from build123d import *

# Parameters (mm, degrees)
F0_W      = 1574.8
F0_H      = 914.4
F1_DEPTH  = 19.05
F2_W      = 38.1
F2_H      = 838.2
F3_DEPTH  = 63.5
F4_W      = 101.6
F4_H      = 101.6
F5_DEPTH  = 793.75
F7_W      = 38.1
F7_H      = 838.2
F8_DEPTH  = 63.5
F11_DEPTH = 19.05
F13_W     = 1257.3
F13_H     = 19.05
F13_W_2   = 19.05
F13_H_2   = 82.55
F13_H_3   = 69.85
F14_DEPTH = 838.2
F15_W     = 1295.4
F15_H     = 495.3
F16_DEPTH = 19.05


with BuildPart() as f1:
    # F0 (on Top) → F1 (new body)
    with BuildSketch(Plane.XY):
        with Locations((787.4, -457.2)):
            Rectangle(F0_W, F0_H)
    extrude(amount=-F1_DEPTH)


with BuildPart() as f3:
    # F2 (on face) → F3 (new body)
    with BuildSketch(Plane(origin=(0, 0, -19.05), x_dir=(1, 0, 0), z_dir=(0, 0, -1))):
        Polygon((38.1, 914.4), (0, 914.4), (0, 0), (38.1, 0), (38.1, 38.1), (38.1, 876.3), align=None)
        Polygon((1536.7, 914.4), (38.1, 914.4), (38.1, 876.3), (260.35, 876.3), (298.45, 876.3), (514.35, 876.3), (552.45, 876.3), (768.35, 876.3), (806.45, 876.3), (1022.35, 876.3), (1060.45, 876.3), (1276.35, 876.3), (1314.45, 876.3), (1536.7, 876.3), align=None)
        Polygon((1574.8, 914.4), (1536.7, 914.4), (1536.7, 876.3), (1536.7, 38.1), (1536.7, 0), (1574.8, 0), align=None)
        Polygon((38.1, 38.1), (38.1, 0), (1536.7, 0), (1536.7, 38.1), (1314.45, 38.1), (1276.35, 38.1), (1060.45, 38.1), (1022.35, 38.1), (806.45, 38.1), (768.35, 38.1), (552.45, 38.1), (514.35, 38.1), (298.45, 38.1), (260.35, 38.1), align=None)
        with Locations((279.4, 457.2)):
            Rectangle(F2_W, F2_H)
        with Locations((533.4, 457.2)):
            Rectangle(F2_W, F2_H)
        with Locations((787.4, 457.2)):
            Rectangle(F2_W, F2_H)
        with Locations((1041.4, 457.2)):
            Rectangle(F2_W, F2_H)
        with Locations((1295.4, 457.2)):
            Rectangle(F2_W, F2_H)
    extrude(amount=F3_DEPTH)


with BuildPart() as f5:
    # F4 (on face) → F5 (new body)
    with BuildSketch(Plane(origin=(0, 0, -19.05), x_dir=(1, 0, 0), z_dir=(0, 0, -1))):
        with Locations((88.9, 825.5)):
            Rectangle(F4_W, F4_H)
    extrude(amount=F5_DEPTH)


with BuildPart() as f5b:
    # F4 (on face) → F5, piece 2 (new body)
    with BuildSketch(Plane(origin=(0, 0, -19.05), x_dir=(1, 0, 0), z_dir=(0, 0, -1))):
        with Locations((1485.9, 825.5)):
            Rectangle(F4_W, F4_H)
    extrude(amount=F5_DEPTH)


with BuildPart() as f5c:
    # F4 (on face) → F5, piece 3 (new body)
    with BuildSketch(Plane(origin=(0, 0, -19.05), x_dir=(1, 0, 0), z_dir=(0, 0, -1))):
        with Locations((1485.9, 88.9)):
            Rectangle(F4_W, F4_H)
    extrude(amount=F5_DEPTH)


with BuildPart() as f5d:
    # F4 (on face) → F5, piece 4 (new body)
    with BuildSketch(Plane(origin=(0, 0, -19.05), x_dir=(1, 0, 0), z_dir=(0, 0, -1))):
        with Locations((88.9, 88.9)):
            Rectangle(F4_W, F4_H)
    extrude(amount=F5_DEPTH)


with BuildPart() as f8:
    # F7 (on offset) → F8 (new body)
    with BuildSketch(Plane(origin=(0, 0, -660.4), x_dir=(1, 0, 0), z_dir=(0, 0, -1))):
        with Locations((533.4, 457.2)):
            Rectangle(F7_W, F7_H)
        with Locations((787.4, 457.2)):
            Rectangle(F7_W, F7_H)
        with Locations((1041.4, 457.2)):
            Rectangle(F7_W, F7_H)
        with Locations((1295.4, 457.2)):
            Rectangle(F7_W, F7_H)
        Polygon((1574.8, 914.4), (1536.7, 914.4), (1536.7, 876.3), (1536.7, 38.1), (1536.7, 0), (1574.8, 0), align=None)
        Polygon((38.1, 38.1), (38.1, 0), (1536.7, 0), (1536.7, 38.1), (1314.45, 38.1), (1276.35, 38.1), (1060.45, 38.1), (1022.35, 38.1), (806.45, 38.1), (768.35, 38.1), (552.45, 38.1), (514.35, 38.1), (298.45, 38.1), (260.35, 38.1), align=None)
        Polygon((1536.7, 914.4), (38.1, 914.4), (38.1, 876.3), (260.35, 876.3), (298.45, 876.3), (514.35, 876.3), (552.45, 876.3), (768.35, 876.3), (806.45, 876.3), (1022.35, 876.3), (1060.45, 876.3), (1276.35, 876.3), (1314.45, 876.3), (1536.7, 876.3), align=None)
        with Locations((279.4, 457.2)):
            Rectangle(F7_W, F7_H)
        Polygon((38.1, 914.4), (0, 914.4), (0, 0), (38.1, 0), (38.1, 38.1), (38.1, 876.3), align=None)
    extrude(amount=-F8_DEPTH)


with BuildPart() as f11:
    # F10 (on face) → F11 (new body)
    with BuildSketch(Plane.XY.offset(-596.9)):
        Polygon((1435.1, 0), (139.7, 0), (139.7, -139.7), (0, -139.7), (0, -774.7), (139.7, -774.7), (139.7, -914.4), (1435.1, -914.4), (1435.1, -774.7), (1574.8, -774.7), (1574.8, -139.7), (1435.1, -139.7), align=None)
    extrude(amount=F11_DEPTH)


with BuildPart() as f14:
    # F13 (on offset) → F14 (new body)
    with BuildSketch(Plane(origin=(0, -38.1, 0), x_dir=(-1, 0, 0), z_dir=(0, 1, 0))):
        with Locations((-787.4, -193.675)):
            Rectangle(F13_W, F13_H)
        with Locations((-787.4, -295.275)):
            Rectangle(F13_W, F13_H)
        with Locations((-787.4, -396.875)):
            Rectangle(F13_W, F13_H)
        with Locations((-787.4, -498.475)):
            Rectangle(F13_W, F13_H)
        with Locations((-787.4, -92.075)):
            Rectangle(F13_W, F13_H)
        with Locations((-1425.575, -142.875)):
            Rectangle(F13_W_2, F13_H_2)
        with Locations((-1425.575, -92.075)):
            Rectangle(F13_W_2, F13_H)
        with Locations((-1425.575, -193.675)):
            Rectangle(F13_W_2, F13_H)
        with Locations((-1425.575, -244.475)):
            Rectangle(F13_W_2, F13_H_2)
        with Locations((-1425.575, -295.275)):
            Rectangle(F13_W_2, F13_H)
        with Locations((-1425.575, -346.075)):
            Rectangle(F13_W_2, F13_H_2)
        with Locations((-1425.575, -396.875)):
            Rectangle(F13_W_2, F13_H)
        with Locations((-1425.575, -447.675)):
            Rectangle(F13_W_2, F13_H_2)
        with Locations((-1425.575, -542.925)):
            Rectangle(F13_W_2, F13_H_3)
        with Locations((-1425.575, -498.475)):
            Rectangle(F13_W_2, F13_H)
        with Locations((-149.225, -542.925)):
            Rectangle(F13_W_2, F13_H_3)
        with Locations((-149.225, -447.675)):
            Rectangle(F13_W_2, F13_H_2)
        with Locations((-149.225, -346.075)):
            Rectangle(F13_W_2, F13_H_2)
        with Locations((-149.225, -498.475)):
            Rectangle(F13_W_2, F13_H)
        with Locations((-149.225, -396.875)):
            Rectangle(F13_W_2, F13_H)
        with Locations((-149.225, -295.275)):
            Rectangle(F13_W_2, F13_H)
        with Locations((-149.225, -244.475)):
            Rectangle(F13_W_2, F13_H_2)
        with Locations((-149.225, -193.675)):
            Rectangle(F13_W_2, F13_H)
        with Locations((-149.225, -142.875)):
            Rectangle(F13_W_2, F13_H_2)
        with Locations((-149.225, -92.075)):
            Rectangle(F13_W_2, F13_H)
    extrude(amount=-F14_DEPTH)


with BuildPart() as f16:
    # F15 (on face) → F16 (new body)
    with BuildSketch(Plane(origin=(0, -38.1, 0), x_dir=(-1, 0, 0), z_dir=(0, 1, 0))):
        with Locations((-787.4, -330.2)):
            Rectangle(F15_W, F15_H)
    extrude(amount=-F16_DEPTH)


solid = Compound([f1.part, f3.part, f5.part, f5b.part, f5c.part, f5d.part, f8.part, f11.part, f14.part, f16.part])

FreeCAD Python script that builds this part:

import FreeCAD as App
import Part
import Sketcher
Q = App.Units.Quantity

doc = App.newDocument("Part")
body = doc.addObject("PartDesign::Body", "Body")

# Sketch on XY plane
sketch1 = body.newObject("Sketcher::SketchObject", "Sketch")
sketch1.AttachmentSupport = (doc.getObject("XY_Plane"), [""])
sketch1.MapMode = "FlatFace"
sketch1.addGeometry([
    Part.LineSegment(App.Vector(0, 0, 0), App.Vector(0, -914.4, 0)),
    Part.LineSegment(App.Vector(0, -914.4, 0), App.Vector(1574.8, -914.4, 0)),
    Part.LineSegment(App.Vector(1574.8, -914.4, 0), App.Vector(1574.8, 0, 0)),
    Part.LineSegment(App.Vector(1574.8, 0, 0), App.Vector(0, 0, 0)),
], False)
sketch1.addConstraint([
    Sketcher.Constraint("Coincident", 0, 2, 1, 1),
    Sketcher.Constraint("Coincident", 1, 2, 2, 1),
    Sketcher.Constraint("Coincident", 2, 2, 3, 1),
    Sketcher.Constraint("Coincident", 3, 2, 0, 1),
    Sketcher.Constraint("Vertical", 0),
    Sketcher.Constraint("Horizontal", 1),
    Sketcher.Constraint("Vertical", 2),
    Sketcher.Constraint("Horizontal", 3),
    Sketcher.Constraint("Coincident", 3, 2, -1, 1),
    Sketcher.Constraint("DistanceX", 1, 1, 1, 2, Q("62 in")),
    Sketcher.Constraint("DistanceY", 0, 2, 0, 1, Q("36 in")),
])
pad1 = body.newObject("PartDesign::Pad", "Pad")
pad1.Profile = sketch1
pad1.Length = Q("0.75 in")
pad1.Reversed = True
body2 = doc.addObject("PartDesign::Body", "Body001")

# Sketch on XY plane
sketch2 = body2.newObject("Sketcher::SketchObject", "Sketch001")
sketch2.AttachmentSupport = (doc.getObject("XY_Plane001"), [""])
sketch2.MapMode = "FlatFace"
sketch2.AttachmentOffset = App.Placement(App.Vector(0, 0, -0.75 * 25.4), App.Rotation())
sketch2.addGeometry([
    Part.LineSegment(App.Vector(0, -914.4, 0), App.Vector(0, 0, 0)),  # 0
    Part.LineSegment(App.Vector(0, 0, 0), App.Vector(1574.8, 0, 0)),  # 1
    Part.LineSegment(App.Vector(1574.8, 0, 0), App.Vector(1574.8, -914.4, 0)),  # 2
    Part.LineSegment(App.Vector(1574.8, -914.4, 0), App.Vector(0, -914.4, 0)),  # 3
    Part.LineSegment(App.Vector(38.1, -38.1, 0), App.Vector(38.1, -876.3, 0)),  # 4
    Part.LineSegment(App.Vector(38.1, -876.3, 0), App.Vector(260.35, -876.3, 0)),  # 5
    Part.LineSegment(App.Vector(260.35, -876.3, 0), App.Vector(260.35, -38.1, 0)),  # 6
    Part.LineSegment(App.Vector(260.35, -38.1, 0), App.Vector(38.1, -38.1, 0)),  # 7
    Part.LineSegment(App.Vector(298.45, -876.3, 0), App.Vector(514.35, -876.3, 0)),  # 8
    Part.LineSegment(App.Vector(514.35, -876.3, 0), App.Vector(514.35, -38.1, 0)),  # 9
    Part.LineSegment(App.Vector(514.35, -38.1, 0), App.Vector(298.45, -38.1, 0)),  # 10
    Part.LineSegment(App.Vector(298.45, -38.1, 0), App.Vector(298.45, -876.3, 0)),  # 11
    Part.LineSegment(App.Vector(552.45, -876.3, 0), App.Vector(768.35, -876.3, 0)),  # 12
    Part.LineSegment(App.Vector(768.35, -876.3, 0), App.Vector(768.35, -38.1, 0)),  # 13
    Part.LineSegment(App.Vector(768.35, -38.1, 0), App.Vector(552.45, -38.1, 0)),  # 14
    Part.LineSegment(App.Vector(552.45, -38.1, 0), App.Vector(552.45, -876.3, 0)),  # 15
    Part.LineSegment(App.Vector(806.45, -876.3, 0), App.Vector(1022.35, -876.3, 0)),  # 16
    Part.LineSegment(App.Vector(1022.35, -876.3, 0), App.Vector(1022.35, -38.1, 0)),  # 17
    Part.LineSegment(App.Vector(1022.35, -38.1, 0), App.Vector(806.45, -38.1, 0)),  # 18
    Part.LineSegment(App.Vector(806.45, -38.1, 0), App.Vector(806.45, -876.3, 0)),  # 19
    Part.LineSegment(App.Vector(1060.45, -876.3, 0), App.Vector(1276.35, -876.3, 0)),  # 20
    Part.LineSegment(App.Vector(1276.35, -876.3, 0), App.Vector(1276.35, -38.1, 0)),  # 21
    Part.LineSegment(App.Vector(1276.35, -38.1, 0), App.Vector(1060.45, -38.1, 0)),  # 22
    Part.LineSegment(App.Vector(1060.45, -38.1, 0), App.Vector(1060.45, -876.3, 0)),  # 23
    Part.LineSegment(App.Vector(1314.45, -876.3, 0), App.Vector(1536.7, -876.3, 0)),  # 24
    Part.LineSegment(App.Vector(1536.7, -876.3, 0), App.Vector(1536.7, -38.1, 0)),  # 25
    Part.LineSegment(App.Vector(1536.7, -38.1, 0), App.Vector(1314.45, -38.1, 0)),  # 26
    Part.LineSegment(App.Vector(1314.45, -38.1, 0), App.Vector(1314.45, -876.3, 0)),  # 27
], False)
sketch2.addConstraint([
    Sketcher.Constraint("Coincident", 0, 2, 1, 1),
    Sketcher.Constraint("Coincident", 1, 2, 2, 1),
    Sketcher.Constraint("Coincident", 2, 2, 3, 1),
    Sketcher.Constraint("Coincident", 3, 2, 0, 1),
    Sketcher.Constraint("Coincident", 4, 2, 5, 1),
    Sketcher.Constraint("Coincident", 5, 2, 6, 1),
    Sketcher.Constraint("Coincident", 6, 2, 7, 1),
    Sketcher.Constraint("Coincident", 7, 2, 4, 1),
    Sketcher.Constraint("Coincident", 8, 2, 9, 1),
    Sketcher.Constraint("Coincident", 9, 2, 10, 1),
    Sketcher.Constraint("Coincident", 10, 2, 11, 1),
    Sketcher.Constraint("Coincident", 11, 2, 8, 1),
    Sketcher.Constraint("Coincident", 12, 2, 13, 1),
    Sketcher.Constraint("Coincident", 13, 2, 14, 1),
    Sketcher.Constraint("Coincident", 14, 2, 15, 1),
    Sketcher.Constraint("Coincident", 15, 2, 12, 1),
    Sketcher.Constraint("Coincident", 16, 2, 17, 1),
    Sketcher.Constraint("Coincident", 17, 2, 18, 1),
    Sketcher.Constraint("Coincident", 18, 2, 19, 1),
    Sketcher.Constraint("Coincident", 19, 2, 16, 1),
    Sketcher.Constraint("Coincident", 20, 2, 21, 1),
    Sketcher.Constraint("Coincident", 21, 2, 22, 1),
    Sketcher.Constraint("Coincident", 22, 2, 23, 1),
    Sketcher.Constraint("Coincident", 23, 2, 20, 1),
    Sketcher.Constraint("Coincident", 24, 2, 25, 1),
    Sketcher.Constraint("Coincident", 25, 2, 26, 1),
    Sketcher.Constraint("Coincident", 26, 2, 27, 1),
    Sketcher.Constraint("Coincident", 27, 2, 24, 1),
    Sketcher.Constraint("Vertical", 0),
    Sketcher.Constraint("Horizontal", 1),
    Sketcher.Constraint("Vertical", 2),
    Sketcher.Constraint("Horizontal", 3),
    Sketcher.Constraint("Vertical", 4),
    Sketcher.Constraint("Horizontal", 5),
    Sketcher.Constraint("Vertical", 6),
    Sketcher.Constraint("Horizontal", 7),
    Sketcher.Constraint("Horizontal", 8),
    Sketcher.Constraint("Vertical", 9),
    Sketcher.Constraint("Horizontal", 10),
    Sketcher.Constraint("Vertical", 11),
    Sketcher.Constraint("Horizontal", 12),
    Sketcher.Constraint("Vertical", 13),
    Sketcher.Constraint("Horizontal", 14),
    Sketcher.Constraint("Vertical", 15),
    Sketcher.Constraint("Horizontal", 16),
    Sketcher.Constraint("Vertical", 17),
    Sketcher.Constraint("Horizontal", 18),
    Sketcher.Constraint("Vertical", 19),
    Sketcher.Constraint("Horizontal", 20),
    Sketcher.Constraint("Vertical", 21),
    Sketcher.Constraint("Horizontal", 22),
    Sketcher.Constraint("Vertical", 23),
    Sketcher.Constraint("Horizontal", 24),
    Sketcher.Constraint("Vertical", 25),
    Sketcher.Constraint("Horizontal", 26),
    Sketcher.Constraint("Vertical", 27),
    Sketcher.Constraint("Coincident", 0, 2, -1, 1),
    Sketcher.Constraint("Horizontal", 5, 2, 8, 2),
    Sketcher.Constraint("Horizontal", 7, 2, 9, 2),
    Sketcher.Constraint("Horizontal", 11, 2, 12, 2),
    Sketcher.Constraint("Horizontal", 10, 2, 13, 2),
    Sketcher.Constraint("Horizontal", 15, 2, 16, 2),
    Sketcher.Constraint("Horizontal", 14, 2, 17, 2),
    Sketcher.Constraint("Horizontal", 19, 2, 20, 2),
    Sketcher.Constraint("Horizontal", 18, 2, 21, 2),
    Sketcher.Constraint("Horizontal", 23, 2, 24, 2),
    Sketcher.Constraint("Horizontal", 22, 2, 25, 2),
    Sketcher.Constraint("Equal", 10, 12),
    Sketcher.Constraint("Equal", 14, 16),
    Sketcher.Constraint("Equal", 18, 20),
    Sketcher.Constraint("Equal", 7, 24),
    Sketcher.Constraint("DistanceX", 1, 1, 1, 2, Q("62 in")),
    Sketcher.Constraint("DistanceY", 0, 1, 0, 2, Q("36 in")),
    Sketcher.Constraint("DistanceY", 4, 2, 4, 1, Q("33 in")),
    Sketcher.Constraint("DistanceX", 8, 1, 8, 2, Q("8.5 in")),
    Sketcher.Constraint("DistanceX", 5, 2, 8, 2, Q("10 in")),
    Sketcher.Constraint("DistanceX", 8, 2, 12, 2, Q("10 in")),
    Sketcher.Constraint("DistanceX", 12, 2, 16, 2, Q("10 in")),
    Sketcher.Constraint("DistanceX", 16, 2, 20, 2, Q("10 in")),
    Sketcher.Constraint("DistanceX", 22, 2, 26, 2, Q("10 in")),
    Sketcher.Constraint("DistanceX", 5, 1, 5, 2, Q("8.75 in")),
    Sketcher.Constraint("DistanceX", -1, 1, 4, 2, Q("1.5 in")),
    Sketcher.Constraint("DistanceY", 4, 2, -1, 1, Q("34.5 in")),
])
pad2 = body2.newObject("PartDesign::Pad", "Pad001")
pad2.Profile = sketch2
pad2.Length = Q("2.5 in")
pad2.Reversed = True
body3 = doc.addObject("PartDesign::Body", "Body002")

# Sketch on XY plane
sketch3 = body3.newObject("Sketcher::SketchObject", "Sketch002")
sketch3.AttachmentSupport = (doc.getObject("XY_Plane002"), [""])
sketch3.MapMode = "FlatFace"
sketch3.AttachmentOffset = App.Placement(App.Vector(0, 0, -0.75 * 25.4), App.Rotation())
sketch3.addGeometry([
    Part.LineSegment(App.Vector(38.1, -876.3, 0), App.Vector(38.1, -774.7, 0)),
    Part.LineSegment(App.Vector(38.1, -774.7, 0), App.Vector(139.7, -774.7, 0)),
    Part.LineSegment(App.Vector(139.7, -774.7, 0), App.Vector(139.7, -876.3, 0)),
    Part.LineSegment(App.Vector(139.7, -876.3, 0), App.Vector(38.1, -876.3, 0)),
], False)
sketch3.addConstraint([
    Sketcher.Constraint("Coincident", 0, 2, 1, 1),
    Sketcher.Constraint("Coincident", 1, 2, 2, 1),
    Sketcher.Constraint("Coincident", 2, 2, 3, 1),
    Sketcher.Constraint("Coincident", 3, 2, 0, 1),
    Sketcher.Constraint("Vertical", 0),
    Sketcher.Constraint("Horizontal", 1),
    Sketcher.Constraint("Vertical", 2),
    Sketcher.Constraint("Horizontal", 3),
    Sketcher.Constraint("Equal", 3, 0),
    Sketcher.Constraint("DistanceX", 1, 1, 1, 2, Q("4 in")),
    Sketcher.Constraint("DistanceX", -1, 1, 0, 2, Q("1.5 in")),
    Sketcher.Constraint("DistanceY", 0, 2, -1, 1, Q("30.5 in")),
])
pad3 = body3.newObject("PartDesign::Pad", "Pad002")
pad3.Profile = sketch3
pad3.Length = Q("31.25 in")
pad3.Reversed = True
body4 = doc.addObject("PartDesign::Body", "Body003")

# Sketch on XY plane
sketch4 = body4.newObject("Sketcher::SketchObject", "Sketch003")
sketch4.AttachmentSupport = (doc.getObject("XY_Plane003"), [""])
sketch4.MapMode = "FlatFace"
sketch4.AttachmentOffset = App.Placement(App.Vector(0, 0, -0.75 * 25.4), App.Rotation())
sketch4.addGeometry([
    Part.LineSegment(App.Vector(1435.1, -876.3, 0), App.Vector(1435.1, -774.7, 0)),
    Part.LineSegment(App.Vector(1435.1, -774.7, 0), App.Vector(1536.7, -774.7, 0)),
    Part.LineSegment(App.Vector(1536.7, -774.7, 0), App.Vector(1536.7, -876.3, 0)),
    Part.LineSegment(App.Vector(1536.7, -876.3, 0), App.Vector(1435.1, -876.3, 0)),
], False)
sketch4.addConstraint([
    Sketcher.Constraint("Coincident", 0, 2, 1, 1),
    Sketcher.Constraint("Coincident", 1, 2, 2, 1),
    Sketcher.Constraint("Coincident", 2, 2, 3, 1),
    Sketcher.Constraint("Coincident", 3, 2, 0, 1),
    Sketcher.Constraint("Vertical", 0),
    Sketcher.Constraint("Horizontal", 1),
    Sketcher.Constraint("Vertical", 2),
    Sketcher.Constraint("Horizontal", 3),
    Sketcher.Constraint("Equal", 3, 0),
    Sketcher.Constraint("DistanceX", 1, 1, 1, 2, Q("4 in")),
    Sketcher.Constraint("DistanceX", -1, 1, 0, 2, Q("56.5 in")),
    Sketcher.Constraint("DistanceY", 0, 2, -1, 1, Q("30.5 in")),
])
pad4 = body4.newObject("PartDesign::Pad", "Pad003")
pad4.Profile = sketch4
pad4.Length = Q("31.25 in")
pad4.Reversed = True
body5 = doc.addObject("PartDesign::Body", "Body004")

# Sketch on XY plane
sketch5 = body5.newObject("Sketcher::SketchObject", "Sketch004")
sketch5.AttachmentSupport = (doc.getObject("XY_Plane004"), [""])
sketch5.MapMode = "FlatFace"
sketch5.AttachmentOffset = App.Placement(App.Vector(0, 0, -0.75 * 25.4), App.Rotation())
sketch5.addGeometry([
    Part.LineSegment(App.Vector(1435.1, -139.7, 0), App.Vector(1435.1, -38.1, 0)),
    Part.LineSegment(App.Vector(1435.1, -38.1, 0), App.Vector(1536.7, -38.1, 0)),
    Part.LineSegment(App.Vector(1536.7, -38.1, 0), App.Vector(1536.7, -139.7, 0)),
    Part.LineSegment(App.Vector(1536.7, -139.7, 0), App.Vector(1435.1, -139.7, 0)),
], False)
sketch5.addConstraint([
    Sketcher.Constraint("Coincident", 0, 2, 1, 1),
    Sketcher.Constraint("Coincident", 1, 2, 2, 1),
    Sketcher.Constraint("Coincident", 2, 2, 3, 1),
    Sketcher.Constraint("Coincident", 3, 2, 0, 1),
    Sketcher.Constraint("Vertical", 0),
    Sketcher.Constraint("Horizontal", 1),
    Sketcher.Constraint("Vertical", 2),
    Sketcher.Constraint("Horizontal", 3),
    Sketcher.Constraint("Equal", 3, 0),
    Sketcher.Constraint("DistanceX", 1, 1, 1, 2, Q("4 in")),
    Sketcher.Constraint("DistanceX", -1, 1, 0, 2, Q("56.5 in")),
    Sketcher.Constraint("DistanceY", 0, 2, -1, 1, Q("1.5 in")),
])
pad5 = body5.newObject("PartDesign::Pad", "Pad004")
pad5.Profile = sketch5
pad5.Length = Q("31.25 in")
pad5.Reversed = True
body6 = doc.addObject("PartDesign::Body", "Body005")

# Sketch on XY plane
sketch6 = body6.newObject("Sketcher::SketchObject", "Sketch005")
sketch6.AttachmentSupport = (doc.getObject("XY_Plane005"), [""])
sketch6.MapMode = "FlatFace"
sketch6.AttachmentOffset = App.Placement(App.Vector(0, 0, -0.75 * 25.4), App.Rotation())
sketch6.addGeometry([
    Part.LineSegment(App.Vector(38.1, -139.7, 0), App.Vector(38.1, -38.1, 0)),
    Part.LineSegment(App.Vector(38.1, -38.1, 0), App.Vector(139.7, -38.1, 0)),
    Part.LineSegment(App.Vector(139.7, -38.1, 0), App.Vector(139.7, -139.7, 0)),
    Part.LineSegment(App.Vector(139.7, -139.7, 0), App.Vector(38.1, -139.7, 0)),
], False)
sketch6.addConstraint([
    Sketcher.Constraint("Coincident", 0, 2, 1, 1),
    Sketcher.Constraint("Coincident", 1, 2, 2, 1),
    Sketcher.Constraint("Coincident", 2, 2, 3, 1),
    Sketcher.Constraint("Coincident", 3, 2, 0, 1),
    Sketcher.Constraint("Vertical", 0),
    Sketcher.Constraint("Horizontal", 1),
    Sketcher.Constraint("Vertical", 2),
    Sketcher.Constraint("Horizontal", 3),
    Sketcher.Constraint("Equal", 3, 0),
    Sketcher.Constraint("DistanceX", 1, 1, 1, 2, Q("4 in")),
    Sketcher.Constraint("DistanceX", -1, 1, 0, 2, Q("1.5 in")),
    Sketcher.Constraint("DistanceY", 0, 2, -1, 1, Q("1.5 in")),
])
pad6 = body6.newObject("PartDesign::Pad", "Pad005")
pad6.Profile = sketch6
pad6.Length = Q("31.25 in")
pad6.Reversed = True
body7 = doc.addObject("PartDesign::Body", "Body006")

# Sketch on XY plane
sketch7 = body7.newObject("Sketcher::SketchObject", "Sketch006")
sketch7.AttachmentSupport = (doc.getObject("XY_Plane006"), [""])
sketch7.MapMode = "FlatFace"
sketch7.AttachmentOffset = App.Placement(App.Vector(0, 0, -26 * 25.4), App.Rotation())
sketch7.addGeometry([
    Part.LineSegment(App.Vector(1574.8, 0, 0), App.Vector(1574.8, -914.4, 0)),  # 0
    Part.LineSegment(App.Vector(1574.8, -914.4, 0), App.Vector(0, -914.4, 0)),  # 1
    Part.LineSegment(App.Vector(0, -914.4, 0), App.Vector(0, 0, 0)),  # 2
    Part.LineSegment(App.Vector(0, 0, 0), App.Vector(1574.8, 0, 0)),  # 3
    Part.LineSegment(App.Vector(514.35, -876.3, 0), App.Vector(514.35, -38.1, 0)),  # 4
    Part.LineSegment(App.Vector(514.35, -38.1, 0), App.Vector(298.45, -38.1, 0)),  # 5
    Part.LineSegment(App.Vector(298.45, -38.1, 0), App.Vector(298.45, -876.3, 0)),  # 6
    Part.LineSegment(App.Vector(298.45, -876.3, 0), App.Vector(514.35, -876.3, 0)),  # 7
    Part.LineSegment(App.Vector(260.35, -38.1, 0), App.Vector(38.1, -38.1, 0)),  # 8
    Part.LineSegment(App.Vector(38.1, -38.1, 0), App.Vector(38.1, -876.3, 0)),  # 9
    Part.LineSegment(App.Vector(38.1, -876.3, 0), App.Vector(260.35, -876.3, 0)),  # 10
    Part.LineSegment(App.Vector(260.35, -876.3, 0), App.Vector(260.35, -38.1, 0)),  # 11
    Part.LineSegment(App.Vector(1536.7, -876.3, 0), App.Vector(1536.7, -38.1, 0)),  # 12
    Part.LineSegment(App.Vector(1536.7, -38.1, 0), App.Vector(1314.45, -38.1, 0)),  # 13
    Part.LineSegment(App.Vector(1314.45, -38.1, 0), App.Vector(1314.45, -876.3, 0)),  # 14
    Part.LineSegment(App.Vector(1314.45, -876.3, 0), App.Vector(1536.7, -876.3, 0)),  # 15
    Part.LineSegment(App.Vector(1276.35, -876.3, 0), App.Vector(1276.35, -38.1, 0)),  # 16
    Part.LineSegment(App.Vector(1276.35, -38.1, 0), App.Vector(1060.45, -38.1, 0)),  # 17
    Part.LineSegment(App.Vector(1060.45, -38.1, 0), App.Vector(1060.45, -876.3, 0)),  # 18
    Part.LineSegment(App.Vector(1060.45, -876.3, 0), App.Vector(1276.35, -876.3, 0)),  # 19
    Part.LineSegment(App.Vector(1022.35, -876.3, 0), App.Vector(1022.35, -38.1, 0)),  # 20
    Part.LineSegment(App.Vector(1022.35, -38.1, 0), App.Vector(806.45, -38.1, 0)),  # 21
    Part.LineSegment(App.Vector(806.45, -38.1, 0), App.Vector(806.45, -876.3, 0)),  # 22
    Part.LineSegment(App.Vector(806.45, -876.3, 0), App.Vector(1022.35, -876.3, 0)),  # 23
    Part.LineSegment(App.Vector(768.35, -876.3, 0), App.Vector(768.35, -38.1, 0)),  # 24
    Part.LineSegment(App.Vector(768.35, -38.1, 0), App.Vector(552.45, -38.1, 0)),  # 25
    Part.LineSegment(App.Vector(552.45, -38.1, 0), App.Vector(552.45, -876.3, 0)),  # 26
    Part.LineSegment(App.Vector(552.45, -876.3, 0), App.Vector(768.35, -876.3, 0)),  # 27
], False)
sketch7.addConstraint([
    Sketcher.Constraint("Coincident", 0, 2, 1, 1),
    Sketcher.Constraint("Coincident", 1, 2, 2, 1),
    Sketcher.Constraint("Coincident", 2, 2, 3, 1),
    Sketcher.Constraint("Coincident", 3, 2, 0, 1),
    Sketcher.Constraint("Coincident", 4, 2, 5, 1),
    Sketcher.Constraint("Coincident", 5, 2, 6, 1),
    Sketcher.Constraint("Coincident", 6, 2, 7, 1),
    Sketcher.Constraint("Coincident", 7, 2, 4, 1),
    Sketcher.Constraint("Coincident", 8, 2, 9, 1),
    Sketcher.Constraint("Coincident", 9, 2, 10, 1),
    Sketcher.Constraint("Coincident", 10, 2, 11, 1),
    Sketcher.Constraint("Coincident", 11, 2, 8, 1),
    Sketcher.Constraint("Coincident", 12, 2, 13, 1),
    Sketcher.Constraint("Coincident", 13, 2, 14, 1),
    Sketcher.Constraint("Coincident", 14, 2, 15, 1),
    Sketcher.Constraint("Coincident", 15, 2, 12, 1),
    Sketcher.Constraint("Coincident", 16, 2, 17, 1),
    Sketcher.Constraint("Coincident", 17, 2, 18, 1),
    Sketcher.Constraint("Coincident", 18, 2, 19, 1),
    Sketcher.Constraint("Coincident", 19, 2, 16, 1),
    Sketcher.Constraint("Coincident", 20, 2, 21, 1),
    Sketcher.Constraint("Coincident", 21, 2, 22, 1),
    Sketcher.Constraint("Coincident", 22, 2, 23, 1),
    Sketcher.Constraint("Coincident", 23, 2, 20, 1),
    Sketcher.Constraint("Coincident", 24, 2, 25, 1),
    Sketcher.Constraint("Coincident", 25, 2, 26, 1),
    Sketcher.Constraint("Coincident", 26, 2, 27, 1),
    Sketcher.Constraint("Coincident", 27, 2, 24, 1),
    Sketcher.Constraint("Vertical", 0),
    Sketcher.Constraint("Horizontal", 1),
    Sketcher.Constraint("Vertical", 2),
    Sketcher.Constraint("Horizontal", 3),
    Sketcher.Constraint("Vertical", 4),
    Sketcher.Constraint("Horizontal", 5),
    Sketcher.Constraint("Vertical", 6),
    Sketcher.Constraint("Horizontal", 7),
    Sketcher.Constraint("Horizontal", 8),
    Sketcher.Constraint("Vertical", 9),
    Sketcher.Constraint("Horizontal", 10),
    Sketcher.Constraint("Vertical", 11),
    Sketcher.Constraint("Vertical", 12),
    Sketcher.Constraint("Horizontal", 13),
    Sketcher.Constraint("Vertical", 14),
    Sketcher.Constraint("Horizontal", 15),
    Sketcher.Constraint("Vertical", 16),
    Sketcher.Constraint("Horizontal", 17),
    Sketcher.Constraint("Vertical", 18),
    Sketcher.Constraint("Horizontal", 19),
    Sketcher.Constraint("Vertical", 20),
    Sketcher.Constraint("Horizontal", 21),
    Sketcher.Constraint("Vertical", 22),
    Sketcher.Constraint("Horizontal", 23),
    Sketcher.Constraint("Vertical", 24),
    Sketcher.Constraint("Horizontal", 25),
    Sketcher.Constraint("Vertical", 26),
    Sketcher.Constraint("Horizontal", 27),
    Sketcher.Constraint("Coincident", 2, 2, -1, 1),
    Sketcher.Constraint("Horizontal", 5, 2, 8, 2),
    Sketcher.Constraint("Horizontal", 7, 2, 9, 2),
    Sketcher.Constraint("Horizontal", 11, 2, 12, 2),
    Sketcher.Constraint("Horizontal", 10, 2, 14, 2),
    Sketcher.Constraint("Horizontal", 13, 2, 16, 2),
    Sketcher.Constraint("Horizontal", 15, 2, 18, 2),
    Sketcher.Constraint("Horizontal", 17, 2, 20, 2),
    Sketcher.Constraint("Horizontal", 19, 2, 22, 2),
    Sketcher.Constraint("Horizontal", 21, 2, 24, 2),
    Sketcher.Constraint("Horizontal", 23, 2, 26, 2),
    Sketcher.Constraint("Equal", 10, 13),
    Sketcher.Constraint("Equal", 7, 17),
    Sketcher.Constraint("Equal", 19, 21),
    Sketcher.Constraint("Equal", 23, 25),
    Sketcher.Constraint("DistanceX", 1, 2, 1, 1, Q("62 in")),
    Sketcher.Constraint("DistanceY", 0, 2, 0, 1, Q("36 in")),
    Sketcher.Constraint("DistanceY", 4, 1, 4, 2, Q("33 in")),
    Sketcher.Constraint("DistanceX", 5, 2, 5, 1, Q("8.5 in")),
    Sketcher.Constraint("DistanceX", 10, 2, 7, 2, Q("10 in")),
    Sketcher.Constraint("DistanceX", 5, 2, 13, 2, Q("40 in")),
    Sketcher.Constraint("DistanceX", 4, 2, 16, 2, Q("30 in")),
    Sketcher.Constraint("DistanceX", 20, 2, 16, 2, Q("10 in")),
    Sketcher.Constraint("DistanceX", 4, 2, 24, 2, Q("10 in")),
    Sketcher.Constraint("DistanceX", 8, 2, 8, 1, Q("8.75 in")),
    Sketcher.Constraint("DistanceY", 4, 2, -1, 1, Q("1.5 in")),
    Sketcher.Constraint("DistanceX", -1, 1, 8, 2, Q("1.5 in")),
])
pad7 = body7.newObject("PartDesign::Pad", "Pad006")
pad7.Profile = sketch7
pad7.Length = Q("2.5 in")
body8 = doc.addObject("PartDesign::Body", "Body007")

# Sketch on XY plane
sketch8 = body8.newObject("Sketcher::SketchObject", "Sketch007")
sketch8.AttachmentSupport = (doc.getObject("XY_Plane007"), [""])
sketch8.MapMode = "FlatFace"
sketch8.AttachmentOffset = App.Placement(App.Vector(0, 0, -23.5 * 25.4), App.Rotation())
sketch8.addGeometry([
    Part.LineSegment(App.Vector(1435.1, 0, 0), App.Vector(139.7, 0, 0)),  # 0
    Part.LineSegment(App.Vector(139.7, 0, 0), App.Vector(139.7, -139.7, 0)),  # 1
    Part.LineSegment(App.Vector(139.7, -139.7, 0), App.Vector(0, -139.7, 0)),  # 2
    Part.LineSegment(App.Vector(0, -139.7, 0), App.Vector(0, -774.7, 0)),  # 3
    Part.LineSegment(App.Vector(0, -774.7, 0), App.Vector(139.7, -774.7, 0)),  # 4
    Part.LineSegment(App.Vector(139.7, -774.7, 0), App.Vector(139.7, -914.4, 0)),  # 5
    Part.LineSegment(App.Vector(139.7, -914.4, 0), App.Vector(1435.1, -914.4, 0)),  # 6
    Part.LineSegment(App.Vector(1435.1, -914.4, 0), App.Vector(1435.1, -774.7, 0)),  # 7
    Part.LineSegment(App.Vector(1435.1, -774.7, 0), App.Vector(1574.8, -774.7, 0)),  # 8
    Part.LineSegment(App.Vector(1574.8, -774.7, 0), App.Vector(1574.8, -139.7, 0)),  # 9
    Part.LineSegment(App.Vector(1574.8, -139.7, 0), App.Vector(1435.1, -139.7, 0)),  # 10
    Part.LineSegment(App.Vector(1435.1, -139.7, 0), App.Vector(1435.1, 0, 0)),  # 11
], False)
sketch8.addConstraint([
    Sketcher.Constraint("Coincident", 0, 2, 1, 1),
    Sketcher.Constraint("Coincident", 1, 2, 2, 1),
    Sketcher.Constraint("Coincident", 2, 2, 3, 1),
    Sketcher.Constraint("Coincident", 3, 2, 4, 1),
    Sketcher.Constraint("Coincident", 4, 2, 5, 1),
    Sketcher.Constraint("Coincident", 5, 2, 6, 1),
    Sketcher.Constraint("Coincident", 6, 2, 7, 1),
    Sketcher.Constraint("Coincident", 7, 2, 8, 1),
    Sketcher.Constraint("Coincident", 8, 2, 9, 1),
    Sketcher.Constraint("Coincident", 9, 2, 10, 1),
    Sketcher.Constraint("Coincident", 10, 2, 11, 1),
    Sketcher.Constraint("Coincident", 11, 2, 0, 1),
    Sketcher.Constraint("Horizontal", 0),
    Sketcher.Constraint("Vertical", 1),
    Sketcher.Constraint("Horizontal", 2),
    Sketcher.Constraint("Vertical", 3),
    Sketcher.Constraint("Horizontal", 4),
    Sketcher.Constraint("Vertical", 5),
    Sketcher.Constraint("Horizontal", 6),
    Sketcher.Constraint("Vertical", 7),
    Sketcher.Constraint("Horizontal", 8),
    Sketcher.Constraint("Vertical", 9),
    Sketcher.Constraint("Horizontal", 10),
    Sketcher.Constraint("Vertical", 11),
    Sketcher.Constraint("PointOnObject", 0, 2, -1),
    Sketcher.Constraint("PointOnObject", 2, 2, -2),
    Sketcher.Constraint("Horizontal", 4, 2, 7, 2),
    Sketcher.Constraint("Horizontal", 2, 2, 9, 2),
    Sketcher.Constraint("Vertical", 1, 2, 4, 2),
    Sketcher.Constraint("Vertical", 7, 2, 10, 2),
    Sketcher.Constraint("Equal", 4, 8),
    Sketcher.Constraint("Equal", 10, 1),
    Sketcher.Constraint("Equal", 1, 5),
    Sketcher.Constraint("DistanceX", 0, 2, 0, 1, Q("51 in")),
    Sketcher.Constraint("DistanceY", 3, 2, 3, 1, Q("25 in")),
    Sketcher.Constraint("DistanceX", 2, 2, 2, 1, Q("5.5 in")),
])
pad8 = body8.newObject("PartDesign::Pad", "Pad007")
pad8.Profile = sketch8
pad8.Length = Q("0.75 in")
body9 = doc.addObject("PartDesign::Body", "Body008")

# Sketch on XZ plane
sketch9 = body9.newObject("Sketcher::SketchObject", "Sketch008")
sketch9.AttachmentSupport = (doc.getObject("XZ_Plane008"), [""])
sketch9.MapMode = "FlatFace"
sketch9.AttachmentOffset = App.Placement(App.Vector(0, 0, 1.5 * 25.4), App.Rotation())
sketch9.addGeometry([
    Part.LineSegment(App.Vector(139.7, -577.85, 0), App.Vector(139.7, -82.55, 0)),  # 0
    Part.LineSegment(App.Vector(139.7, -82.55, 0), App.Vector(1435.1, -82.55, 0)),  # 1
    Part.LineSegment(App.Vector(1435.1, -82.55, 0), App.Vector(1435.1, -577.85, 0)),  # 2
    Part.LineSegment(App.Vector(1435.1, -577.85, 0), App.Vector(1416.05, -577.85, 0)),  # 3
    Part.LineSegment(App.Vector(1416.05, -577.85, 0), App.Vector(1416.05, -508, 0)),  # 4
    Part.LineSegment(App.Vector(1416.05, -508, 0), App.Vector(158.75, -508, 0)),  # 5
    Part.LineSegment(App.Vector(158.75, -508, 0), App.Vector(158.75, -577.85, 0)),  # 6
    Part.LineSegment(App.Vector(158.75, -577.85, 0), App.Vector(139.7, -577.85, 0)),  # 7
    Part.LineSegment(App.Vector(158.75, -406.4, 0), App.Vector(158.75, -488.95, 0)),  # 8
    Part.LineSegment(App.Vector(158.75, -488.95, 0), App.Vector(1416.05, -488.95, 0)),  # 9
    Part.LineSegment(App.Vector(1416.05, -488.95, 0), App.Vector(1416.05, -406.4, 0)),  # 10
    Part.LineSegment(App.Vector(1416.05, -406.4, 0), App.Vector(158.75, -406.4, 0)),  # 11
    Part.LineSegment(App.Vector(158.75, -304.8, 0), App.Vector(158.75, -387.35, 0)),  # 12
    Part.LineSegment(App.Vector(158.75, -387.35, 0), App.Vector(1416.05, -387.35, 0)),  # 13
    Part.LineSegment(App.Vector(1416.05, -387.35, 0), App.Vector(1416.05, -304.8, 0)),  # 14
    Part.LineSegment(App.Vector(1416.05, -304.8, 0), App.Vector(158.75, -304.8, 0)),  # 15
    Part.LineSegment(App.Vector(158.75, -203.2, 0), App.Vector(158.75, -285.75, 0)),  # 16
    Part.LineSegment(App.Vector(158.75, -285.75, 0), App.Vector(1416.05, -285.75, 0)),  # 17
    Part.LineSegment(App.Vector(1416.05, -285.75, 0), App.Vector(1416.05, -203.2, 0)),  # 18
    Part.LineSegment(App.Vector(1416.05, -203.2, 0), App.Vector(158.75, -203.2, 0)),  # 19
    Part.LineSegment(App.Vector(158.75, -101.6, 0), App.Vector(158.75, -184.15, 0)),  # 20
    Part.LineSegment(App.Vector(158.75, -184.15, 0), App.Vector(1416.05, -184.15, 0)),  # 21
    Part.LineSegment(App.Vector(1416.05, -184.15, 0), App.Vector(1416.05, -101.6, 0)),  # 22
    Part.LineSegment(App.Vector(1416.05, -101.6, 0), App.Vector(158.75, -101.6, 0)),  # 23
], False)
sketch9.addConstraint([
    Sketcher.Constraint("Coincident", 0, 2, 1, 1),
    Sketcher.Constraint("Coincident", 1, 2, 2, 1),
    Sketcher.Constraint("Coincident", 2, 2, 3, 1),
    Sketcher.Constraint("Coincident", 3, 2, 4, 1),
    Sketcher.Constraint("Coincident", 4, 2, 5, 1),
    Sketcher.Constraint("Coincident", 5, 2, 6, 1),
    Sketcher.Constraint("Coincident", 6, 2, 7, 1),
    Sketcher.Constraint("Coincident", 7, 2, 0, 1),
    Sketcher.Constraint("Coincident", 8, 2, 9, 1),
    Sketcher.Constraint("Coincident", 9, 2, 10, 1),
    Sketcher.Constraint("Coincident", 10, 2, 11, 1),
    Sketcher.Constraint("Coincident", 11, 2, 8, 1),
    Sketcher.Constraint("Coincident", 12, 2, 13, 1),
    Sketcher.Constraint("Coincident", 13, 2, 14, 1),
    Sketcher.Constraint("Coincident", 14, 2, 15, 1),
    Sketcher.Constraint("Coincident", 15, 2, 12, 1),
    Sketcher.Constraint("Coincident", 16, 2, 17, 1),
    Sketcher.Constraint("Coincident", 17, 2, 18, 1),
    Sketcher.Constraint("Coincident", 18, 2, 19, 1),
    Sketcher.Constraint("Coincident", 19, 2, 16, 1),
    Sketcher.Constraint("Coincident", 20, 2, 21, 1),
    Sketcher.Constraint("Coincident", 21, 2, 22, 1),
    Sketcher.Constraint("Coincident", 22, 2, 23, 1),
    Sketcher.Constraint("Coincident", 23, 2, 20, 1),
    Sketcher.Constraint("Vertical", 0),
    Sketcher.Constraint("Horizontal", 1),
    Sketcher.Constraint("Vertical", 2),
    Sketcher.Constraint("Horizontal", 3),
    Sketcher.Constraint("Vertical", 4),
    Sketcher.Constraint("Horizontal", 5),
    Sketcher.Constraint("Vertical", 6),
    Sketcher.Constraint("Horizontal", 7),
    Sketcher.Constraint("Vertical", 8),
    Sketcher.Constraint("Horizontal", 9),
    Sketcher.Constraint("Vertical", 10),
    Sketcher.Constraint("Horizontal", 11),
    Sketcher.Constraint("Vertical", 12),
    Sketcher.Constraint("Horizontal", 13),
    Sketcher.Constraint("Vertical", 14),
    Sketcher.Constraint("Horizontal", 15),
    Sketcher.Constraint("Vertical", 16),
    Sketcher.Constraint("Horizontal", 17),
    Sketcher.Constraint("Vertical", 18),
    Sketcher.Constraint("Horizontal", 19),
    Sketcher.Constraint("Vertical", 20),
    Sketcher.Constraint("Horizontal", 21),
    Sketcher.Constraint("Vertical", 22),
    Sketcher.Constraint("Horizontal", 23),
    Sketcher.Constraint("Horizontal", 3, 2, 6, 2),
    Sketcher.Constraint("Vertical", 6, 2, 8, 2),
    Sketcher.Constraint("Vertical", 4, 2, 9, 2),
    Sketcher.Constraint("Vertical", 11, 2, 12, 2),
    Sketcher.Constraint("Vertical", 10, 2, 13, 2),
    Sketcher.Constraint("Vertical", 15, 2, 16, 2),
    Sketcher.Constraint("Vertical", 14, 2, 17, 2),
    Sketcher.Constraint("Vertical", 19, 2, 20, 2),
    Sketcher.Constraint("Vertical", 18, 2, 21, 2),
    Sketcher.Constraint("Equal", 3, 7),
    Sketcher.Constraint("Equal", 10, 12),
    Sketcher.Constraint("Equal", 14, 16),
    Sketcher.Constraint("Equal", 18, 20),
    Sketcher.Constraint("DistanceX", 1, 1, 1, 2, Q("51 in")),
    Sketcher.Constraint("DistanceX", 5, 2, 5, 1, Q("49.5 in")),
    Sketcher.Constraint("DistanceY", 0, 1, 0, 2, Q("19.5 in")),
    Sketcher.Constraint("DistanceY", 4, 2, -1, 1, Q("20 in")),
    Sketcher.Constraint("DistanceY", 10, 2, -1, 1, Q("16 in")),
    Sketcher.Constraint("DistanceY", 14, 2, -1, 1, Q("12 in")),
    Sketcher.Constraint("DistanceY", 18, 2, -1, 1, Q("8 in")),
    Sketcher.Constraint("DistanceY", 22, 2, -1, 1, Q("4 in")),
    Sketcher.Constraint("DistanceY", 8, 2, 0, 2, Q("16 in")),
    Sketcher.Constraint("DistanceY", 4, 1, 4, 2, Q("2.75 in")),
    Sketcher.Constraint("DistanceX", -1, 1, 0, 2, Q("5.5 in")),
])
pad9 = body9.newObject("PartDesign::Pad", "Pad008")
pad9.Profile = sketch9
pad9.Length = Q("33 in")
body10 = doc.addObject("PartDesign::Body", "Body009")

# Sketch on XZ plane
sketch10 = body10.newObject("Sketcher::SketchObject", "Sketch009")
sketch10.AttachmentSupport = (doc.getObject("XZ_Plane009"), [""])
sketch10.MapMode = "FlatFace"
sketch10.AttachmentOffset = App.Placement(App.Vector(0, 0, 1.5 * 25.4), App.Rotation())
sketch10.addGeometry([
    Part.LineSegment(App.Vector(1435.1, -82.55, 0), App.Vector(1435.1, -577.85, 0)),
    Part.LineSegment(App.Vector(1435.1, -577.85, 0), App.Vector(139.7, -577.85, 0)),
    Part.LineSegment(App.Vector(139.7, -577.85, 0), App.Vector(139.7, -82.55, 0)),
    Part.LineSegment(App.Vector(139.7, -82.55, 0), App.Vector(1435.1, -82.55, 0)),
], False)
sketch10.addConstraint([
    Sketcher.Constraint("Coincident", 0, 2, 1, 1),
    Sketcher.Constraint("Coincident", 1, 2, 2, 1),
    Sketcher.Constraint("Coincident", 2, 2, 3, 1),
    Sketcher.Constraint("Coincident", 3, 2, 0, 1),
    Sketcher.Constraint("Vertical", 0),
    Sketcher.Constraint("Horizontal", 1),
    Sketcher.Constraint("Vertical", 2),
    Sketcher.Constraint("Horizontal", 3),
    Sketcher.Constraint("DistanceX", 1, 2, 1, 1, Q("51 in")),
    Sketcher.Constraint("DistanceY", 0, 2, 0, 1, Q("19.5 in")),
    Sketcher.Constraint("DistanceX", -1, 1, 0, 2, Q("56.5 in")),
    Sketcher.Constraint("DistanceY", 0, 2, -1, 1, Q("22.75 in")),
])
pad10 = body10.newObject("PartDesign::Pad", "Pad009")
pad10.Profile = sketch10
pad10.Length = Q("0.75 in")

doc.recompute()
